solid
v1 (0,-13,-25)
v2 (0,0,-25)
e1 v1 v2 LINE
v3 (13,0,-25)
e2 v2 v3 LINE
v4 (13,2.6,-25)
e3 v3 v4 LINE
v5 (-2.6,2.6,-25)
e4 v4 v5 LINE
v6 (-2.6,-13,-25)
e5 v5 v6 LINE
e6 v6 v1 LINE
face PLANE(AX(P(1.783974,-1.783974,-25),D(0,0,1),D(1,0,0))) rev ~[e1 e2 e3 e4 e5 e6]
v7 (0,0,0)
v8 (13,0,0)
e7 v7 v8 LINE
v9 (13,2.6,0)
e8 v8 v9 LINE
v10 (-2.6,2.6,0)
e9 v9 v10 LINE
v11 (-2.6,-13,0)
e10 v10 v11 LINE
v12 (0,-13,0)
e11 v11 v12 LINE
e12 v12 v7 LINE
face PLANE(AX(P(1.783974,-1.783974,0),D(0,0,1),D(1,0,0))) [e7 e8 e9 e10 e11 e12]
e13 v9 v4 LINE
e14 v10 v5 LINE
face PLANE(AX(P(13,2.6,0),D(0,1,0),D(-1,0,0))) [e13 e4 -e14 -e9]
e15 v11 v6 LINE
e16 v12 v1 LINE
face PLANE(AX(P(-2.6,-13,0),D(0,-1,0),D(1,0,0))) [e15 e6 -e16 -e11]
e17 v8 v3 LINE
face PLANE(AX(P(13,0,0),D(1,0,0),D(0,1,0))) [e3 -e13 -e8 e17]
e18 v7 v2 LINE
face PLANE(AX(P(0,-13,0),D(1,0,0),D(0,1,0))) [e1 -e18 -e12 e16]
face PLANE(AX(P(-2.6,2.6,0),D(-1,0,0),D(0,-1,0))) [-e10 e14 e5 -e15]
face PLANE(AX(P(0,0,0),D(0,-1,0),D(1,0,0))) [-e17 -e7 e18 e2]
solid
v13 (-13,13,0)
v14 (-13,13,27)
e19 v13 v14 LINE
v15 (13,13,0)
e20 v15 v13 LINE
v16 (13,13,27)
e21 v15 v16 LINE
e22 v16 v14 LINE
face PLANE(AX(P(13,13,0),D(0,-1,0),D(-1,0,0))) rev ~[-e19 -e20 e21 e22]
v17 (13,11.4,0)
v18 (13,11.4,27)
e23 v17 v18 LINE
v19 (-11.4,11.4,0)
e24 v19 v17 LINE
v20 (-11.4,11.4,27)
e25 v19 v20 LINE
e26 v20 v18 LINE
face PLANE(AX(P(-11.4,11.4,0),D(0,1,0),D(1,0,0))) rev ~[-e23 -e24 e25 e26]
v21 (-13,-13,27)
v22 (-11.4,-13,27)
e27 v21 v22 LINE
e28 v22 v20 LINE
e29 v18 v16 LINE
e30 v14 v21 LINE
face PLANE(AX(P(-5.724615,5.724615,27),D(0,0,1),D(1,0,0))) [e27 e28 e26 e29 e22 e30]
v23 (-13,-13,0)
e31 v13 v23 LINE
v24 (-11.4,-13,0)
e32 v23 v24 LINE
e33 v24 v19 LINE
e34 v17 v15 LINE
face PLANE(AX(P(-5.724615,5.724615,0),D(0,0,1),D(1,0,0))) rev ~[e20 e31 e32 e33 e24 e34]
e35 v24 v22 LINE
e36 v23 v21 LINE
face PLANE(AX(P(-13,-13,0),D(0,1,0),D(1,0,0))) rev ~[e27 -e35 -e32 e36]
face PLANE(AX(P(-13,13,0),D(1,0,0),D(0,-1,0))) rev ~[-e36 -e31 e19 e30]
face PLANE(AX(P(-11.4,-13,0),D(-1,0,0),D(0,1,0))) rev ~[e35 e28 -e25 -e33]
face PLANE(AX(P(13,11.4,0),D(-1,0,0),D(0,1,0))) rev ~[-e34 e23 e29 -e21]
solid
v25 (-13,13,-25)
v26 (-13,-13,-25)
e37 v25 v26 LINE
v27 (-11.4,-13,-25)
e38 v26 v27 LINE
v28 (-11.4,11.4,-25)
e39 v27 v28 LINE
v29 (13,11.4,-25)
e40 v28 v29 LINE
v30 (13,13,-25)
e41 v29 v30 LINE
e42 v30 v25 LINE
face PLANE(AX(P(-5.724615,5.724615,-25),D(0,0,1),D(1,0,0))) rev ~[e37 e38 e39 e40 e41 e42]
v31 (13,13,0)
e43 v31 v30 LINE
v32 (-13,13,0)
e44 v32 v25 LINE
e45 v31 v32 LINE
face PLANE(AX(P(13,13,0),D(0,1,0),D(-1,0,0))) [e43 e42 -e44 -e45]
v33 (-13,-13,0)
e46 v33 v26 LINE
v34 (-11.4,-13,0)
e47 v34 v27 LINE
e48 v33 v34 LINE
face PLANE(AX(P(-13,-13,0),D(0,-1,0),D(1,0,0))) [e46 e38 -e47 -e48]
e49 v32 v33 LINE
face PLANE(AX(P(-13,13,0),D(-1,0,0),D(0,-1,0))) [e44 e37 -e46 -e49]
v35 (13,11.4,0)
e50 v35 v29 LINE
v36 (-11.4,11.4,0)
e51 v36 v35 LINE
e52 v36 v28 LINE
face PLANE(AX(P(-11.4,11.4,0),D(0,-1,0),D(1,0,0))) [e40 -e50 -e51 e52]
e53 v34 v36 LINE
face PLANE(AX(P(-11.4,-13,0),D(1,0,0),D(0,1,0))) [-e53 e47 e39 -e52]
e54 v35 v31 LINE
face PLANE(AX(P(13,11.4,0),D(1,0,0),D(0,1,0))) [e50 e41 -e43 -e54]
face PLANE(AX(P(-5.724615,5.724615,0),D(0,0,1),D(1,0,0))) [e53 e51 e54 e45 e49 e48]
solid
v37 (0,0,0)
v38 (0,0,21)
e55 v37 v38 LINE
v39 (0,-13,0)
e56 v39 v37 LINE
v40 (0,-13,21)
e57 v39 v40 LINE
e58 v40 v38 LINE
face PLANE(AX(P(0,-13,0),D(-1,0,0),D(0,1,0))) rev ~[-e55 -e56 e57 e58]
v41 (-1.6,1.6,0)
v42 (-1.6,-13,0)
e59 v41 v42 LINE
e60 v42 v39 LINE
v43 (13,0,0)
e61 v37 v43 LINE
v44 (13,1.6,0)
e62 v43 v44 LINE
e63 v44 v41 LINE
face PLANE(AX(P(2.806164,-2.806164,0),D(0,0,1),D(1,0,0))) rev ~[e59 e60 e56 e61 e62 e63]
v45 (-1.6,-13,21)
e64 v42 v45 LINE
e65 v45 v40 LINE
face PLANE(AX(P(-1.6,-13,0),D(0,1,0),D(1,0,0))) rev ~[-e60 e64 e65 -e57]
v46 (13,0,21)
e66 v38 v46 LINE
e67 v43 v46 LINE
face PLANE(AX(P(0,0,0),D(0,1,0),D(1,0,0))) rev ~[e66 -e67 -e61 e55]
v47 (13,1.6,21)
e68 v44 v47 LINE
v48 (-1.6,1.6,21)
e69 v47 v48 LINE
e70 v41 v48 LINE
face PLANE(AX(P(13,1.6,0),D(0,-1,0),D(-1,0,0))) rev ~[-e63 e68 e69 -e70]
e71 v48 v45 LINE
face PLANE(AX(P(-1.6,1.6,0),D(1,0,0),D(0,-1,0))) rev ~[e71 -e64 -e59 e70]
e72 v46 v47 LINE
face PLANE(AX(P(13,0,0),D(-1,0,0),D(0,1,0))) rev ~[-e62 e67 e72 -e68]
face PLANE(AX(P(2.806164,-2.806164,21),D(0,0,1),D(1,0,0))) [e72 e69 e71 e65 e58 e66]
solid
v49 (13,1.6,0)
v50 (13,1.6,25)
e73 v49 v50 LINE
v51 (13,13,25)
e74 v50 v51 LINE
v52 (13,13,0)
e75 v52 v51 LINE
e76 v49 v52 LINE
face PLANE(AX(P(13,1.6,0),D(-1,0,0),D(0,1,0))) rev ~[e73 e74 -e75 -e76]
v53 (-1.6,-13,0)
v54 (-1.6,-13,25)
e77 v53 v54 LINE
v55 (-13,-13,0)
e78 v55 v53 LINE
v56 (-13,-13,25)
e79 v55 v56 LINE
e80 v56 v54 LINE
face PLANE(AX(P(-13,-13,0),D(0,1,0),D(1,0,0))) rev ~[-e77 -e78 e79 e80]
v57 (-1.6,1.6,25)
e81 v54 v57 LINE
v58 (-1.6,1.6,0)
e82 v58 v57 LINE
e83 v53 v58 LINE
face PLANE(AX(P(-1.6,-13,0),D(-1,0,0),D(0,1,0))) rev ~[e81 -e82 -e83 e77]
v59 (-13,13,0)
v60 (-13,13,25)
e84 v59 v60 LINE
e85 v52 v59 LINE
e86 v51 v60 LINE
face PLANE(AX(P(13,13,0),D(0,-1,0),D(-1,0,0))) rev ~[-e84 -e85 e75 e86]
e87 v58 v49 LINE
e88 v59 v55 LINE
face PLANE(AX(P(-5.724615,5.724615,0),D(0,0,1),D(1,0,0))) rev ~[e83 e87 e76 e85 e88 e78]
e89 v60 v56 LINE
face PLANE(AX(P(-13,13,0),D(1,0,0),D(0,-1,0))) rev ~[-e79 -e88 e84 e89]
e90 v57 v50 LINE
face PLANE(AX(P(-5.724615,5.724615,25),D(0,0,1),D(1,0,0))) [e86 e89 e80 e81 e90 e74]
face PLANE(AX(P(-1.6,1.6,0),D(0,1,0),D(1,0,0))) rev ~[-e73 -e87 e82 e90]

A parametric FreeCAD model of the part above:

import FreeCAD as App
import Part
import Sketcher

V = App.Vector

doc = App.newDocument("Part")
params = doc.addObject("Spreadsheet::Sheet", "Params")
for row, (alias, value) in enumerate([
    ("sketch1_width", "26 mm"),
    ("sketch1_width2", "1.6 mm"),
    ("sketch1_width3", "2.6 mm"),
    ("pad1_length", "25 mm"),
    ("sketch2_width", "13 mm"),
    ("sketch2_width2", "1.6 mm"),
    ("pad2_length", "21 mm"),
    ("sketch3_width", "26 mm"),
    ("sketch3_width2", "1.6 mm"),
    ("pad3_length", "27 mm"),
    ("sketch4_width", "26 mm"),
    ("sketch4_width2", "11.4 mm"),
    ("pad4_length", "25 mm"),
], start=1):
    params.set(f"A{row}", alias)
    params.set(f"B{row}", "=" + value)
    params.setAlias(f"B{row}", alias)

body = doc.addObject("PartDesign::Body", "Body")
body.AllowCompound = True

# Sketch on XY plane
sketch1 = doc.addObject("Sketcher::SketchObject", "Sketch")
body.addObject(sketch1)
sketch1.AttachmentSupport = (doc.XY_Plane, [""])
sketch1.MapMode = "FlatFace"
sketch1.addGeometry([
    Part.LineSegment(V(-13, -13, 0), V(-11.4, -13, 0)),  # 0
    Part.LineSegment(V(-11.4, -13, 0), V(-11.4, 11.4, 0)),  # 1
    Part.LineSegment(V(-11.4, 11.4, 0), V(13, 11.4, 0)),  # 2
    Part.LineSegment(V(13, 11.4, 0), V(13, 13, 0)),  # 3
    Part.LineSegment(V(13, 13, 0), V(-13, 13, 0)),  # 4
    Part.LineSegment(V(-13, 13, 0), V(-13, -13, 0)),  # 5
    Part.LineSegment(V(-2.6, -13, 0), V(0, -13, 0)),  # 6
    Part.LineSegment(V(0, -13, 0), V(0, 0, 0)),  # 7
    Part.LineSegment(V(0, 0, 0), V(13, 0, 0)),  # 8
    Part.LineSegment(V(13, 0, 0), V(13, 2.6, 0)),  # 9
    Part.LineSegment(V(13, 2.6, 0), V(-2.6, 2.6, 0)),  # 10
    Part.LineSegment(V(-2.6, 2.6, 0), V(-2.6, -13, 0)),  # 11
], False)
sketch1.addConstraint([
    Sketcher.Constraint("Coincident", 0, 2, 1, 1),
    Sketcher.Constraint("Coincident", 1, 2, 2, 1),
    Sketcher.Constraint("Coincident", 2, 2, 3, 1),
    Sketcher.Constraint("Coincident", 3, 2, 4, 1),
    Sketcher.Constraint("Coincident", 4, 2, 5, 1),
    Sketcher.Constraint("Coincident", 5, 2, 0, 1),
    Sketcher.Constraint("Coincident", 6, 2, 7, 1),
    Sketcher.Constraint("Coincident", 7, 2, 8, 1),
    Sketcher.Constraint("Coincident", 8, 2, 9, 1),
    Sketcher.Constraint("Coincident", 9, 2, 10, 1),
    Sketcher.Constraint("Coincident", 10, 2, 11, 1),
    Sketcher.Constraint("Coincident", 11, 2, 6, 1),
    Sketcher.Constraint("Horizontal", 0),
    Sketcher.Constraint("Vertical", 1),
    Sketcher.Constraint("Horizontal", 2),
    Sketcher.Constraint("Vertical", 3),
    Sketcher.Constraint("Horizontal", 4),
    Sketcher.Constraint("Vertical", 5),
    Sketcher.Constraint("Horizontal", 6),
    Sketcher.Constraint("Vertical", 7),
    Sketcher.Constraint("Horizontal", 8),
    Sketcher.Constraint("Vertical", 9),
    Sketcher.Constraint("Horizontal", 10),
    Sketcher.Constraint("Vertical", 11),
    Sketcher.Constraint("Coincident", 7, 2, -1, 1),
    Sketcher.Constraint("Symmetric", 3, 2, 5, 2, -1, 1),
    Sketcher.Constraint("Horizontal", 5, 2, 6, 2),
    Sketcher.Constraint("Vertical", 3, 2, 8, 2),
    Sketcher.Constraint("Equal", 2, 1),
    Sketcher.Constraint("Equal", 0, 3),
    Sketcher.Constraint("Equal", 6, 9),
    Sketcher.Constraint("DistanceX", 4, 2, 4, 1, 26.0),
    Sketcher.Constraint("DistanceX", 0, 1, 0, 2, 1.6),
    Sketcher.Constraint("DistanceX", 6, 1, 6, 2, 2.6),
])
sketch1.setExpression("Constraints[31]", "Params.sketch1_width")
sketch1.setExpression("Constraints[32]", "Params.sketch1_width2")
sketch1.setExpression("Constraints[33]", "Params.sketch1_width3")
pad1 = doc.addObject("PartDesign::Pad", "Pad")
body.addObject(pad1)
pad1.Profile = sketch1
pad1.setExpression("Length", "Params.pad1_length")
pad1.Reversed = True
body2 = doc.addObject("PartDesign::Body", "Body001")

# Sketch on XY plane
sketch2 = doc.addObject("Sketcher::SketchObject", "Sketch001")
body2.addObject(sketch2)
sketch2.AttachmentSupport = (doc.getObject("XY_Plane001"), [""])
sketch2.MapMode = "FlatFace"
sketch2.addGeometry([
    Part.LineSegment(V(-1.6, -13, 0), V(0, -13, 0)),  # 0
    Part.LineSegment(V(0, -13, 0), V(0, 0, 0)),  # 1
    Part.LineSegment(V(0, 0, 0), V(13, 0, 0)),  # 2
    Part.LineSegment(V(13, 0, 0), V(13, 1.6, 0)),  # 3
    Part.LineSegment(V(13, 1.6, 0), V(-1.6, 1.6, 0)),  # 4
    Part.LineSegment(V(-1.6, 1.6, 0), V(-1.6, -13, 0)),  # 5
], False)
sketch2.addConstraint([
    Sketcher.Constraint("Coincident", 0, 2, 1, 1),
    Sketcher.Constraint("Coincident", 1, 2, 2, 1),
    Sketcher.Constraint("Coincident", 2, 2, 3, 1),
    Sketcher.Constraint("Coincident", 3, 2, 4, 1),
    Sketcher.Constraint("Coincident", 4, 2, 5, 1),
    Sketcher.Constraint("Coincident", 5, 2, 0, 1),
    Sketcher.Constraint("Horizontal", 0),
    Sketcher.Constraint("Vertical", 1),
    Sketcher.Constraint("Horizontal", 2),
    Sketcher.Constraint("Vertical", 3),
    Sketcher.Constraint("Horizontal", 4),
    Sketcher.Constraint("Vertical", 5),
    Sketcher.Constraint("Coincident", 1, 2, -1, 1),
    Sketcher.Constraint("Equal", 2, 1),
    Sketcher.Constraint("Equal", 0, 3),
    Sketcher.Constraint("DistanceX", 2, 1, 2, 2, 13.0),
    Sketcher.Constraint("DistanceX", 0, 1, 0, 2, 1.6),
])
sketch2.setExpression("Constraints[15]", "Params.sketch2_width")
sketch2.setExpression("Constraints[16]", "Params.sketch2_width2")
pad2 = doc.addObject("PartDesign::Pad", "Pad001")
body2.addObject(pad2)
pad2.Profile = sketch2
pad2.setExpression("Length", "Params.pad2_length")
body3 = doc.addObject("PartDesign::Body", "Body002")

# Sketch on XY plane
sketch3 = doc.addObject("Sketcher::SketchObject", "Sketch002")
body3.addObject(sketch3)
sketch3.AttachmentSupport = (doc.getObject("XY_Plane002"), [""])
sketch3.MapMode = "FlatFace"
sketch3.addGeometry([
    Part.LineSegment(V(-13, -13, 0), V(-11.4, -13, 0)),  # 0
    Part.LineSegment(V(-11.4, -13, 0), V(-11.4, 11.4, 0)),  # 1
    Part.LineSegment(V(-11.4, 11.4, 0), V(13, 11.4, 0)),  # 2
    Part.LineSegment(V(13, 11.4, 0), V(13, 13, 0)),  # 3
    Part.LineSegment(V(13, 13, 0), V(-13, 13, 0)),  # 4
    Part.LineSegment(V(-13, 13, 0), V(-13, -13, 0)),  # 5
], False)
sketch3.addConstraint([
    Sketcher.Constraint("Coincident", 0, 2, 1, 1),
    Sketcher.Constraint("Coincident", 1, 2, 2, 1),
    Sketcher.Constraint("Coincident", 2, 2, 3, 1),
    Sketcher.Constraint("Coincident", 3, 2, 4, 1),
    Sketcher.Constraint("Coincident", 4, 2, 5, 1),
    Sketcher.Constraint("Coincident", 5, 2, 0, 1),
    Sketcher.Constraint("Horizontal", 0),
    Sketcher.Constraint("Vertical", 1),
    Sketcher.Constraint("Horizontal", 2),
    Sketcher.Constraint("Vertical", 3),
    Sketcher.Constraint("Horizontal", 4),
    Sketcher.Constraint("Vertical", 5),
    Sketcher.Constraint("Symmetric", 3, 2, 5, 2, -1, 1),
    Sketcher.Constraint("Equal", 2, 1),
    Sketcher.Constraint("Equal", 0, 3),
    Sketcher.Constraint("DistanceX", 4, 2, 4, 1, 26.0),
    Sketcher.Constraint("DistanceX", 0, 1, 0, 2, 1.6),
])
sketch3.setExpression("Constraints[15]", "Params.sketch3_width")
sketch3.setExpression("Constraints[16]", "Params.sketch3_width2")
pad3 = doc.addObject("PartDesign::Pad", "Pad002")
body3.addObject(pad3)
pad3.Profile = sketch3
pad3.setExpression("Length", "Params.pad3_length")
body4 = doc.addObject("PartDesign::Body", "Body003")

# Sketch on XY plane
sketch4 = doc.addObject("Sketcher::SketchObject", "Sketch003")
body4.addObject(sketch4)
sketch4.AttachmentSupport = (doc.getObject("XY_Plane003"), [""])
sketch4.MapMode = "FlatFace"
sketch4.addGeometry([
    Part.LineSegment(V(-13, -13, 0), V(-2, -13, 0)),  # 0
    Part.LineSegment(V(-2, -13, 0), V(-2, 2, 0)),  # 1
    Part.LineSegment(V(-2, 2, 0), V(13, 2, 0)),  # 2
    Part.LineSegment(V(13, 2, 0), V(13, 13, 0)),  # 3
    Part.LineSegment(V(13, 13, 0), V(-13, 13, 0)),  # 4
    Part.LineSegment(V(-13, 13, 0), V(-13, -13, 0)),  # 5
], False)
sketch4.addConstraint([
    Sketcher.Constraint("Coincident", 0, 2, 1, 1),
    Sketcher.Constraint("Coincident", 1, 2, 2, 1),
    Sketcher.Constraint("Coincident", 2, 2, 3, 1),
    Sketcher.Constraint("Coincident", 3, 2, 4, 1),
    Sketcher.Constraint("Coincident", 4, 2, 5, 1),
    Sketcher.Constraint("Coincident", 5, 2, 0, 1),
    Sketcher.Constraint("Horizontal", 0),
    Sketcher.Constraint("Vertical", 1),
    Sketcher.Constraint("Horizontal", 2),
    Sketcher.Constraint("Vertical", 3),
    Sketcher.Constraint("Horizontal", 4),
    Sketcher.Constraint("Vertical", 5),
    Sketcher.Constraint("Symmetric", 3, 2, 5, 2, -1, 1),
    Sketcher.Constraint("Equal", 2, 1),
    Sketcher.Constraint("Equal", 0, 3),
    Sketcher.Constraint("DistanceX", 4, 2, 4, 1, 26.0),
    Sketcher.Constraint("DistanceX", 0, 1, 0, 2, 11.4),
])
sketch4.setExpression("Constraints[15]", "Params.sketch4_width")
sketch4.setExpression("Constraints[16]", "Params.sketch4_width2")
pad4 = doc.addObject("PartDesign::Pad", "Pad003")
body4.addObject(pad4)
pad4.Profile = sketch4
pad4.setExpression("Length", "Params.pad4_length")

doc.recompute()
